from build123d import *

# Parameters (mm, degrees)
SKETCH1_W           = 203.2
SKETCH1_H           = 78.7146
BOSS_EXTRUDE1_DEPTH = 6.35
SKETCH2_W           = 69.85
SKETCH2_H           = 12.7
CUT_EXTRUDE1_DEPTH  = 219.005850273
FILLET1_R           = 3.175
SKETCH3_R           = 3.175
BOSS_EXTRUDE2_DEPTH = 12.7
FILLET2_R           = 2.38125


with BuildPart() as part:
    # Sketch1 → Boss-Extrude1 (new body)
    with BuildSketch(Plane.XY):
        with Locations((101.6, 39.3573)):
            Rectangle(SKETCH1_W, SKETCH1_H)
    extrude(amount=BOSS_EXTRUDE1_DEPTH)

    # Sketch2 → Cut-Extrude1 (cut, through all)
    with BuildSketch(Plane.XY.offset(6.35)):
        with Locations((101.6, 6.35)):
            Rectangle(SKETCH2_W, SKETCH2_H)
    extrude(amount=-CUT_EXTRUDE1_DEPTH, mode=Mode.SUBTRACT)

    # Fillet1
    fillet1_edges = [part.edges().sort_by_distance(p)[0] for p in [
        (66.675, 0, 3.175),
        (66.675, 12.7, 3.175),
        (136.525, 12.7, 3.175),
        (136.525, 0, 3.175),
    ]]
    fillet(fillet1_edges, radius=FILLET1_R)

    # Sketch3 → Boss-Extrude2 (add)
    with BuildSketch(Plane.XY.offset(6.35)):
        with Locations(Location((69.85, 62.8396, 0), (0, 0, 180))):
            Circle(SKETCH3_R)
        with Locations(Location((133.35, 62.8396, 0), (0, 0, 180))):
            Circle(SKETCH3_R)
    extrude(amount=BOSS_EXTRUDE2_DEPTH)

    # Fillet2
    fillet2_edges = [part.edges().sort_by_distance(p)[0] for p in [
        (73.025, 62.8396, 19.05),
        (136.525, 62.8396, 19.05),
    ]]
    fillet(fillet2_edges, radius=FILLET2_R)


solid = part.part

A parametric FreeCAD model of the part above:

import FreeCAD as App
import Part
import Sketcher
from FreeCAD import Vector
Q = App.Units.Quantity


def edges_at(feature, points):
    """Names of the edges that pass closest to the given points."""
    edges = feature.Shape.Edges
    near = lambda p: min(range(len(edges)), key=lambda i: edges[i].distToShape(Part.Vertex(*p))[0])
    return sorted({f"Edge{near(p) + 1}" for p in points})


def add_polygon(sketch, points):
    """Adds a closed chain of lines whose ends are joined by coincident constraints."""
    first, n = sketch.GeometryCount, len(points)
    for a, b in zip(points, points[1:] + points[:1]):
        sketch.addGeometry(Part.LineSegment(App.Vector(*a, 0), App.Vector(*b, 0)), False)
    for i in range(n):
        sketch.addConstraint(Sketcher.Constraint("Coincident", first + i, 2, first + (i + 1) % n, 1))

doc = App.newDocument("Part")
body = doc.addObject("PartDesign::Body", "Body")

sketch1 = doc.addObject("Sketcher::SketchObject", "Sketch")
body.addObject(sketch1)
sketch1.AttachmentSupport = (doc.XY_Plane, [""])
sketch1.MapMode = "FlatFace"
add_polygon(sketch1, [(0, 79), (0, 0), (203, 0), (203, 79)])
sketch1.addConstraint(Sketcher.Constraint("Vertical", 0))
sketch1.addConstraint(Sketcher.Constraint("Horizontal", 1))
sketch1.addConstraint(Sketcher.Constraint("Vertical", 2))
sketch1.addConstraint(Sketcher.Constraint("Horizontal", 3))
sketch1.addConstraint(Sketcher.Constraint("Coincident", 0, 2, -1, 1))
sketch1.addConstraint(Sketcher.Constraint("DistanceX", 1, 1, 1, 2, Q("8 in")))
sketch1.addConstraint(Sketcher.Constraint("DistanceY", 0, 2, 0, 1, Q("3.099 in")))
pad1 = doc.addObject("PartDesign::Pad", "Pad")
body.addObject(pad1)
pad1.Profile = sketch1
pad1.Length = Q("0.25 in")

sketch2 = doc.addObject("Sketcher::SketchObject", "Sketch001")
body.addObject(sketch2)
sketch2.AttachmentSupport = (doc.XY_Plane, [""])
sketch2.MapMode = "FlatFace"
sketch2.AttachmentOffset = App.Placement(Vector(0, 0, 0.25 * 25.4), App.Rotation())
add_polygon(sketch2, [(67, 13), (67, 0), (137, 0), (137, 13)])
sketch2.addConstraint(Sketcher.Constraint("Vertical", 0))
sketch2.addConstraint(Sketcher.Constraint("Horizontal", 1))
sketch2.addConstraint(Sketcher.Constraint("Vertical", 2))
sketch2.addConstraint(Sketcher.Constraint("Horizontal", 3))
sketch2.addConstraint(Sketcher.Constraint("PointOnObject", 0, 2, -1))
sketch2.addConstraint(Sketcher.Constraint("DistanceY", 0, 2, 0, 1, Q("0.5 in")))
sketch2.addConstraint(Sketcher.Constraint("DistanceX", 1, 1, 1, 2, Q("2.75 in")))
sketch2.addConstraint(Sketcher.Constraint("DistanceX", -1, 1, 0, 2, Q("2.625 in")))
pocket1 = doc.addObject("PartDesign::Pocket", "Pocket")
body.addObject(pocket1)
pocket1.Profile = sketch2
pocket1.Type = "ThroughAll"
doc.recompute()

fillet = doc.addObject("PartDesign::Fillet", "Fillet")
body.addObject(fillet)
fillet.Base = (pocket1, edges_at(pocket1, [
    (66.675, 0, 3.175),
    (66.675, 12.7, 3.175),
    (136.525, 12.7, 3.175),
    (136.525, 0, 3.175),
]))
fillet.Radius = Q("0.125 in")

sketch3 = doc.addObject("Sketcher::SketchObject", "Sketch002")
body.addObject(sketch3)
sketch3.AttachmentSupport = (doc.XY_Plane, [""])
sketch3.MapMode = "FlatFace"
sketch3.AttachmentOffset = App.Placement(Vector(0, 0, 0.25 * 25.4), App.Rotation())
sketch3.addGeometry(Part.Circle(Vector(69.8, 62.8, 0), Vector(0, 0, 1), 3.2), False)
sketch3.addGeometry(Part.Circle(Vector(133.3, 62.8, 0), Vector(0, 0, 1), 3.2), False)
sketch3.addConstraint(Sketcher.Constraint("Equal", 0, 1))
sketch3.addConstraint(Sketcher.Constraint("Horizontal", 0, 3, 1, 3))
sketch3.addConstraint(Sketcher.Constraint("Diameter", 0, Q("0.25 in")))
sketch3.addConstraint(Sketcher.Constraint("DistanceX", 0, 3, 1, 3, Q("2.5 in")))
sketch3.addConstraint(Sketcher.Constraint("DistanceX", -1, 1, 0, 3, Q("2.75 in")))
sketch3.addConstraint(Sketcher.Constraint("DistanceY", -1, 1, 0, 3, Q("2.474 in")))
pad2 = doc.addObject("PartDesign::Pad", "Pad001")
body.addObject(pad2)
pad2.Profile = sketch3
pad2.Length = Q("0.5 in")
doc.recompute()

fillet2 = doc.addObject("PartDesign::Fillet", "Fillet001")
body.addObject(fillet2)
fillet2.Base = (pad2, edges_at(pad2, [(73.025, 62.84, 19.05), (136.525, 62.84, 19.05)]))
fillet2.Radius = Q("0.09375 in")

doc.recompute()
